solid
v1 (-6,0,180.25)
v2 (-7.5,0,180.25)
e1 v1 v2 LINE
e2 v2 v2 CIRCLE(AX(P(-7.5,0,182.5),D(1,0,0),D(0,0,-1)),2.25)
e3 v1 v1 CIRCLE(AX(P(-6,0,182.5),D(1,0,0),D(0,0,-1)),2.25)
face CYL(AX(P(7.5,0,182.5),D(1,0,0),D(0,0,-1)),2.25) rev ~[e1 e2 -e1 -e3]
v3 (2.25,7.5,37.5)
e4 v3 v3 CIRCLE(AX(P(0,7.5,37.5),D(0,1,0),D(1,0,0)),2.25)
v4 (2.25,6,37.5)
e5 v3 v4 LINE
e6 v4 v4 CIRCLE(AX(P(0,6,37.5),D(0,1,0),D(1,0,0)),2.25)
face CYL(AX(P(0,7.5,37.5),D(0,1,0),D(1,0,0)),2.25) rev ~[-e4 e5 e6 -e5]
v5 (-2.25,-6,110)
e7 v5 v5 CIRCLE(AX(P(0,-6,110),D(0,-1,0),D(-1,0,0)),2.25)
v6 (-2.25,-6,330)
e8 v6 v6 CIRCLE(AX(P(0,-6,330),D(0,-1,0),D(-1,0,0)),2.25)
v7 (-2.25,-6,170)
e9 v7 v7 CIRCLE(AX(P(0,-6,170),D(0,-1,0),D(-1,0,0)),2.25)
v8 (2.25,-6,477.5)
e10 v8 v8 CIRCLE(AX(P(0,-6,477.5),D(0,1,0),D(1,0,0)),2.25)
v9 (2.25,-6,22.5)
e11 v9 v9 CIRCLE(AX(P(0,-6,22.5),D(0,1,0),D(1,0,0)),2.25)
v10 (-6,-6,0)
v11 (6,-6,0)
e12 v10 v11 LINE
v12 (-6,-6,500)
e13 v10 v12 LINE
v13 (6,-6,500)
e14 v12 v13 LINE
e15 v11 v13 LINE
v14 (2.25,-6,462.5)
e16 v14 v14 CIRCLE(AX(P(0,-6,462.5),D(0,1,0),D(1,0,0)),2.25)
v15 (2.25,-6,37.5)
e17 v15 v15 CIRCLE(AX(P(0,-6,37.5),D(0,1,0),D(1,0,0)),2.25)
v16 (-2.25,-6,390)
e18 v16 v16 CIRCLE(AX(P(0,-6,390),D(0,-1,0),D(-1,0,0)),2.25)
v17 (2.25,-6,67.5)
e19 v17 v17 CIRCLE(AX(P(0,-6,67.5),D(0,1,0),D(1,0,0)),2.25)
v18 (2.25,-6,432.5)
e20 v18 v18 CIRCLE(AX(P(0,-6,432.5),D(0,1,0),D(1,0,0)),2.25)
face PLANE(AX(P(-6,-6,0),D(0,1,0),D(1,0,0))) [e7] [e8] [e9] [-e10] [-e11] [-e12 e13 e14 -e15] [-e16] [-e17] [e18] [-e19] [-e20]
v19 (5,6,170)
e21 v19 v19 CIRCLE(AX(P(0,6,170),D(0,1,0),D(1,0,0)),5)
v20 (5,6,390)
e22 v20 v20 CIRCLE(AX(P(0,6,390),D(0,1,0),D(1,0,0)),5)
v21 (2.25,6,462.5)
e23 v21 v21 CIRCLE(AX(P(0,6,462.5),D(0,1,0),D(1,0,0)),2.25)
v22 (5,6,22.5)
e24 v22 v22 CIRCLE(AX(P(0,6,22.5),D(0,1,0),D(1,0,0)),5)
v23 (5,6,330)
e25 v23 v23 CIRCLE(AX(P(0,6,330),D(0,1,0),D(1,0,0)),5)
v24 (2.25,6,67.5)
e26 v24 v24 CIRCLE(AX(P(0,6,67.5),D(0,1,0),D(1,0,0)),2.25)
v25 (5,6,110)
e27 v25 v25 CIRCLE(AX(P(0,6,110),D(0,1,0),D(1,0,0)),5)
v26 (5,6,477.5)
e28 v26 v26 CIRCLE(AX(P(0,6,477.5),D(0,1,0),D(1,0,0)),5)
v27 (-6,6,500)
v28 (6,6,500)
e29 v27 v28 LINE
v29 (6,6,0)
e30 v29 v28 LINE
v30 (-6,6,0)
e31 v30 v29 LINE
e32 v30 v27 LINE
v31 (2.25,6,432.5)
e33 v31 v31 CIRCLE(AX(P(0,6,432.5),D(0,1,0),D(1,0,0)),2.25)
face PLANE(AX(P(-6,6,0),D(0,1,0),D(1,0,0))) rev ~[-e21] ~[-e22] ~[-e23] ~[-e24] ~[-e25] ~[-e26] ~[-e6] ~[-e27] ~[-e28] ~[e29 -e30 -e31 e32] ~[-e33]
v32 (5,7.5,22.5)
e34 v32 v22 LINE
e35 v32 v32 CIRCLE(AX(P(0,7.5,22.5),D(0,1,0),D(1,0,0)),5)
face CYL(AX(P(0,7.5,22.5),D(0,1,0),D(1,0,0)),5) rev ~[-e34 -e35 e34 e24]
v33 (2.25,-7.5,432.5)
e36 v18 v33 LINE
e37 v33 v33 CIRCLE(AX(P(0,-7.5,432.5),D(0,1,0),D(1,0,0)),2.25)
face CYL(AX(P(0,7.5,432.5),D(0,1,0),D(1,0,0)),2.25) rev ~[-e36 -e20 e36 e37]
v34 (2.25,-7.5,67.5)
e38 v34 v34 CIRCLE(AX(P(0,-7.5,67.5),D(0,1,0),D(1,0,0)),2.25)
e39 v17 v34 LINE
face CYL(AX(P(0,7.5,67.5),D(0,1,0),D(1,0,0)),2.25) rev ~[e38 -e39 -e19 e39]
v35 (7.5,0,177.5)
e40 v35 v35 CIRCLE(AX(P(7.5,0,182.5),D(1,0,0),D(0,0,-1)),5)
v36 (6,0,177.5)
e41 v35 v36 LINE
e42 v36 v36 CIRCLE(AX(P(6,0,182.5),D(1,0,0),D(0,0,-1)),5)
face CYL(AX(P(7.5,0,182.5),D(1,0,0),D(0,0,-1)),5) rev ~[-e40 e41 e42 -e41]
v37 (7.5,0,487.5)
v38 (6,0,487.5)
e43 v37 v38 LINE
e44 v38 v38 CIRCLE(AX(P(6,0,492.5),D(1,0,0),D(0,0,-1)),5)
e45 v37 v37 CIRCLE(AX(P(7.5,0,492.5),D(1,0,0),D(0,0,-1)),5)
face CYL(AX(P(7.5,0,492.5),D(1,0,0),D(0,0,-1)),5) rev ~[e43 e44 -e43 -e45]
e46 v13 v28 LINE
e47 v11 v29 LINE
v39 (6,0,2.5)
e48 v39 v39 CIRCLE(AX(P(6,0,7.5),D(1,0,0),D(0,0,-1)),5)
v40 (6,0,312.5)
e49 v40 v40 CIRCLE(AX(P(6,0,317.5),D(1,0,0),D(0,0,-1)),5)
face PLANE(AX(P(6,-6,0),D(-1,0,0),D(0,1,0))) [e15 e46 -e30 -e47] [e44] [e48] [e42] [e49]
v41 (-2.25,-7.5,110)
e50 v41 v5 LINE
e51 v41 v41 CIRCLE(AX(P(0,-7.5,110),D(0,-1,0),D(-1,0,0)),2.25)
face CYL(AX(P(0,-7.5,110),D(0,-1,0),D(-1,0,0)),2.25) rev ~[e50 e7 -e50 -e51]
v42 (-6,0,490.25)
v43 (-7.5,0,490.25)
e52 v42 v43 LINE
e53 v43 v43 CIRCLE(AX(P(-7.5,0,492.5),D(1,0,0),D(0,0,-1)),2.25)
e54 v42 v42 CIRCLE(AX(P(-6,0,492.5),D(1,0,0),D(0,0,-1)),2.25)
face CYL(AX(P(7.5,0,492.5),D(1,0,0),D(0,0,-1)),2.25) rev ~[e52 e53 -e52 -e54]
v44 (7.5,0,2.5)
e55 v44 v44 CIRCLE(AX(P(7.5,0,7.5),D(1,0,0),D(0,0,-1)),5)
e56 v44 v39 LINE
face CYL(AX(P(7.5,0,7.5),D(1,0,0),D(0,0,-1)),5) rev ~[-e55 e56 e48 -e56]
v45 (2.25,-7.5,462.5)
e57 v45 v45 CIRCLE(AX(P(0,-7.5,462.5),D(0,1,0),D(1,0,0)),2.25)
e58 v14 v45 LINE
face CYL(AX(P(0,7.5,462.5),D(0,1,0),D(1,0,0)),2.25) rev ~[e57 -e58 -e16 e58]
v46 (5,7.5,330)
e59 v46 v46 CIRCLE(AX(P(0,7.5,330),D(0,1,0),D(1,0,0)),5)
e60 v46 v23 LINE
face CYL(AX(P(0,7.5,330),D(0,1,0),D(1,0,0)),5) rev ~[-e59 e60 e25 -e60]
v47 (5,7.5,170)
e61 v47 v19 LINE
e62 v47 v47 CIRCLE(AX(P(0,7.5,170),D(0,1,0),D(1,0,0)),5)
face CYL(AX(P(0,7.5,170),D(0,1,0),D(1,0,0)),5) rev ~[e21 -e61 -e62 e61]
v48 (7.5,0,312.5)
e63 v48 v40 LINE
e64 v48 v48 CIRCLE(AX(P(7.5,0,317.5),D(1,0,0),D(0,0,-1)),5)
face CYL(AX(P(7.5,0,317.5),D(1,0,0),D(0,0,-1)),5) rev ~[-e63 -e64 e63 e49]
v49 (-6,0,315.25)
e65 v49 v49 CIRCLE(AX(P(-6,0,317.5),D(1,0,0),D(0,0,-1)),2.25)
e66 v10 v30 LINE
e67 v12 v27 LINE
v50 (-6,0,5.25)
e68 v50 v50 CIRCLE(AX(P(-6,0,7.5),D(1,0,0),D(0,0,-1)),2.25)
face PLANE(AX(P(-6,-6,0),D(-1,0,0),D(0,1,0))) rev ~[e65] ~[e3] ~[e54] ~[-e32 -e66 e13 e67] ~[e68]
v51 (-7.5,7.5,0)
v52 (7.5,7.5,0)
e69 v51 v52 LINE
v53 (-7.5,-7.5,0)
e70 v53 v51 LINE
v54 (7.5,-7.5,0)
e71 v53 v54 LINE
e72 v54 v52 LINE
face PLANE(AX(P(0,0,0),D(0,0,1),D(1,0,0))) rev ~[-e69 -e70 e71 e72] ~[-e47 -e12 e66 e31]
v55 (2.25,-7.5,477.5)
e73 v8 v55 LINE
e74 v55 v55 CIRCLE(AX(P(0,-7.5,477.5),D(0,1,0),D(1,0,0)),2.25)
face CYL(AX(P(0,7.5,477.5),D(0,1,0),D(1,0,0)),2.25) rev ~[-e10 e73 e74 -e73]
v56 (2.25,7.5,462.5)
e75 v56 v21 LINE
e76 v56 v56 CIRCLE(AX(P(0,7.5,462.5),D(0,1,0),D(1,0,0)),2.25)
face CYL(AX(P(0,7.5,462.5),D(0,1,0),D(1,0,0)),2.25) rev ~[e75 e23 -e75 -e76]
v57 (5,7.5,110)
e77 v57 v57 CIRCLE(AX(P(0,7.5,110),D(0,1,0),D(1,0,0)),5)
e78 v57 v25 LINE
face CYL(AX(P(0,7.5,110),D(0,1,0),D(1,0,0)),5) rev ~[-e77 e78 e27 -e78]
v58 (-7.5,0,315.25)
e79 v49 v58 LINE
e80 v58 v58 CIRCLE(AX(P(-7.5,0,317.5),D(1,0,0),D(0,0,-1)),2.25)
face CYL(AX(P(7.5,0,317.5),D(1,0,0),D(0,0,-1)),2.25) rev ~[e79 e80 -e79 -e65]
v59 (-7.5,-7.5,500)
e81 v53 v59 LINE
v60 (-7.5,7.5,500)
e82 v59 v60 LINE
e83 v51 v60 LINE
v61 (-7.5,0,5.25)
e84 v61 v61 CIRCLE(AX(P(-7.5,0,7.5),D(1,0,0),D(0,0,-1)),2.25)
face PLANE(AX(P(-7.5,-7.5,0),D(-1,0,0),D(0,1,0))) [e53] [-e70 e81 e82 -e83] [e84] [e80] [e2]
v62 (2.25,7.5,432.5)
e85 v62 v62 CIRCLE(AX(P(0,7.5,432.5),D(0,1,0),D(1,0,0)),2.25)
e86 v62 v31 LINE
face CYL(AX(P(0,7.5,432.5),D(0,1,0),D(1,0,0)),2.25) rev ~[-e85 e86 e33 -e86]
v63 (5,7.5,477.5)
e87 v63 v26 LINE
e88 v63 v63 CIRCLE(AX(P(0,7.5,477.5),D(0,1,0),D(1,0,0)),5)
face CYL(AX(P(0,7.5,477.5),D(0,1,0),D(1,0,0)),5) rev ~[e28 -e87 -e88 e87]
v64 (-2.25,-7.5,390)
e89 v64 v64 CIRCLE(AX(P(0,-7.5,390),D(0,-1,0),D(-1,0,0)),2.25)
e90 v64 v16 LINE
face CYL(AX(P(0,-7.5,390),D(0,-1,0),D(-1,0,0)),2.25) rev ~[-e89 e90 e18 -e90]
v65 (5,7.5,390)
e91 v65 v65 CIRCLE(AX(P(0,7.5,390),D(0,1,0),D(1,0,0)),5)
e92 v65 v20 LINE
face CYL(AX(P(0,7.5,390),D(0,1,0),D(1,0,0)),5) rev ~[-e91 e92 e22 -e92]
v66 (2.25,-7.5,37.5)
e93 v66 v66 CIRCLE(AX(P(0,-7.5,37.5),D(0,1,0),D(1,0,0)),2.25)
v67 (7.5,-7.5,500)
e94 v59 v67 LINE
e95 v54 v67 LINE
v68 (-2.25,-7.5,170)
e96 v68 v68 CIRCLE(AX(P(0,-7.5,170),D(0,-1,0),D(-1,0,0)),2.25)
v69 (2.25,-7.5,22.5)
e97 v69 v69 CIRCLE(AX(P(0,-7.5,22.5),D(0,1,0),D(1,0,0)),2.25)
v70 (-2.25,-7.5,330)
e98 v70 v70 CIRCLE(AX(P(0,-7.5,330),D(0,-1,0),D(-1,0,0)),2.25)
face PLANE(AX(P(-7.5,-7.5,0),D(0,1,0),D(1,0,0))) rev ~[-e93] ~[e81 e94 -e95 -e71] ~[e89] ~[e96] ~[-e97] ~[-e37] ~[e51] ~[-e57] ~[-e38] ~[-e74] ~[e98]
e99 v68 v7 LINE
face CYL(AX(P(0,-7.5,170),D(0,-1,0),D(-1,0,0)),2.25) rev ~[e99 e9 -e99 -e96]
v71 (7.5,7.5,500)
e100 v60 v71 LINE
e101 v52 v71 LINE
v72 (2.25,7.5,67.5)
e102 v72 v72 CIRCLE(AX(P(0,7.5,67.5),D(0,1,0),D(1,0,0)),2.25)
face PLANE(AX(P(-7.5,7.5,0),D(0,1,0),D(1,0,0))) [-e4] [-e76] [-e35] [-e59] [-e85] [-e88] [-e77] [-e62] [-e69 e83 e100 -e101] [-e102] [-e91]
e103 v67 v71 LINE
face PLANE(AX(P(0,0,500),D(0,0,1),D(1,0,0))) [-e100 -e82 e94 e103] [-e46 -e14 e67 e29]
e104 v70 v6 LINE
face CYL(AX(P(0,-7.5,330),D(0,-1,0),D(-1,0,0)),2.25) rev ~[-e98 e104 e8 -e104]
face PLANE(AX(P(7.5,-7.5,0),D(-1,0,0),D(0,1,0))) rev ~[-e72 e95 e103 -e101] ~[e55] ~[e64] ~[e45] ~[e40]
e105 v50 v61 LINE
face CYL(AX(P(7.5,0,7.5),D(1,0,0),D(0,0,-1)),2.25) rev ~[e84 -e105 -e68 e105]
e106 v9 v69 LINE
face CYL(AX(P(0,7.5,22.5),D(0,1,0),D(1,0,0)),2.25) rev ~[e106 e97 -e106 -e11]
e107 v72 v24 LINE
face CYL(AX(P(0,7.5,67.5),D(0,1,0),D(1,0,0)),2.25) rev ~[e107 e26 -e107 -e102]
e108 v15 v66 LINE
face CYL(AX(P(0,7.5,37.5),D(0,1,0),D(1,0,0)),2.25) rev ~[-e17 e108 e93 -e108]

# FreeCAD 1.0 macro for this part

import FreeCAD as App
import Part
import Sketcher
Q = App.Units.Quantity

doc = App.newDocument("Part")
body = doc.addObject("PartDesign::Body", "Body")

# Sketch on XY plane
sketch1 = body.newObject("Sketcher::SketchObject", "Sketch")
sketch1.AttachmentSupport = (doc.getObject("XY_Plane"), [""])
sketch1.MapMode = "FlatFace"
sketch1.addGeometry([
    Part.LineSegment(App.Vector(-8, 8, 0), App.Vector(-8, -8, 0)),  # 0
    Part.LineSegment(App.Vector(-8, -8, 0), App.Vector(8, -8, 0)),  # 1
    Part.LineSegment(App.Vector(8, -8, 0), App.Vector(8, 8, 0)),  # 2
    Part.LineSegment(App.Vector(8, 8, 0), App.Vector(-8, 8, 0)),  # 3
    Part.LineSegment(App.Vector(6, -6, 0), App.Vector(-6, -6, 0)),  # 4
    Part.LineSegment(App.Vector(-6, -6, 0), App.Vector(-6, 6, 0)),  # 5
    Part.LineSegment(App.Vector(-6, 6, 0), App.Vector(6, 6, 0)),  # 6
    Part.LineSegment(App.Vector(6, 6, 0), App.Vector(6, -6, 0)),  # 7
], False)
sketch1.addConstraint([
    Sketcher.Constraint("Coincident", 0, 2, 1, 1),
    Sketcher.Constraint("Coincident", 1, 2, 2, 1),
    Sketcher.Constraint("Coincident", 2, 2, 3, 1),
    Sketcher.Constraint("Coincident", 3, 2, 0, 1),
    Sketcher.Constraint("Coincident", 4, 2, 5, 1),
    Sketcher.Constraint("Coincident", 5, 2, 6, 1),
    Sketcher.Constraint("Coincident", 6, 2, 7, 1),
    Sketcher.Constraint("Coincident", 7, 2, 4, 1),
    Sketcher.Constraint("Vertical", 0),
    Sketcher.Constraint("Horizontal", 1),
    Sketcher.Constraint("Vertical", 2),
    Sketcher.Constraint("Horizontal", 3),
    Sketcher.Constraint("Horizontal", 4),
    Sketcher.Constraint("Vertical", 5),
    Sketcher.Constraint("Horizontal", 6),
    Sketcher.Constraint("Vertical", 7),
    Sketcher.Constraint("Symmetric", 0, 2, 2, 2, -1, 1),
    Sketcher.Constraint("Symmetric", 4, 2, 6, 2, -1, 1),
    Sketcher.Constraint("Equal", 3, 0),
    Sketcher.Constraint("Equal", 6, 5),
    Sketcher.Constraint("DistanceX", 1, 1, 1, 2, Q("15 mm")),
    Sketcher.Constraint("DistanceX", 4, 2, 4, 1, Q("12 mm")),
])
pad1 = body.newObject("PartDesign::Pad", "Pad")
pad1.Profile = sketch1
pad1.Length = 500

# Sketch on YZ plane
sketch2 = body.newObject("Sketcher::SketchObject", "Sketch001")
sketch2.AttachmentSupport = (doc.getObject("YZ_Plane"), [""])
sketch2.MapMode = "FlatFace"
sketch2.AttachmentOffset = App.Placement(App.Vector(0, 0, 7.5), App.Rotation())
sketch2.addGeometry([
    Part.Circle(App.Vector(0, 492.5, 0), App.Vector(0, 0, 1), 2.2),
    Part.Circle(App.Vector(0, 7.5, 0), App.Vector(0, 0, 1), 2.2),
    Part.Circle(App.Vector(0, 317.5, 0), App.Vector(0, 0, 1), 2.2),
    Part.Circle(App.Vector(0, 182.5, 0), App.Vector(0, 0, 1), 2.2),
], False)
sketch2.addConstraint([
    Sketcher.Constraint("Equal", 0, 1),
    Sketcher.Constraint("Equal", 1, 2),
    Sketcher.Constraint("Equal", 2, 3),
    Sketcher.Constraint("PointOnObject", 0, 3, -2),
    Sketcher.Constraint("PointOnObject", 1, 3, -2),
    Sketcher.Constraint("PointOnObject", 2, 3, -2),
    Sketcher.Constraint("PointOnObject", 3, 3, -2),
    Sketcher.Constraint("Diameter", 0, Q("4.5 mm")),
    Sketcher.Constraint("DistanceY", 1, 3, 0, 3, Q("485 mm")),
    Sketcher.Constraint("DistanceY", 2, 3, 0, 3, Q("175 mm")),
    Sketcher.Constraint("DistanceY", 3, 3, 2, 3, Q("135 mm")),
    Sketcher.Constraint("DistanceY", -1, 1, 0, 3, Q("492.5 mm")),
])
pocket1 = body.newObject("PartDesign::Pocket", "Pocket")
pocket1.Profile = sketch2
pocket1.Length = 25

# Sketch on XZ plane
sketch3 = body.newObject("Sketcher::SketchObject", "Sketch002")
sketch3.AttachmentSupport = (doc.getObject("XZ_Plane"), [""])
sketch3.MapMode = "FlatFace"
sketch3.AttachmentOffset = App.Placement(App.Vector(0, 0, -7.5), App.Rotation())
sketch3.addGeometry([
    Part.Circle(App.Vector(0, 22.5, 0), App.Vector(0, 0, 1), 2.2),  # 0
    Part.Circle(App.Vector(0, 477.5, 0), App.Vector(0, 0, 1), 2.2),  # 1
    Part.Circle(App.Vector(0, 37.5, 0), App.Vector(0, 0, 1), 2.2),  # 2
    Part.Circle(App.Vector(0, 462.5, 0), App.Vector(0, 0, 1), 2.2),  # 3
    Part.Circle(App.Vector(0, 67.5, 0), App.Vector(0, 0, 1), 2.2),  # 4
    Part.Circle(App.Vector(0, 432.5, 0), App.Vector(0, 0, 1), 2.2),  # 5
], False)
sketch3.addConstraint([
    Sketcher.Constraint("Equal", 0, 1),
    Sketcher.Constraint("Equal", 1, 2),
    Sketcher.Constraint("Equal", 2, 3),
    Sketcher.Constraint("Equal", 3, 4),
    Sketcher.Constraint("Equal", 4, 5),
    Sketcher.Constraint("PointOnObject", 0, 3, -2),
    Sketcher.Constraint("PointOnObject", 1, 3, -2),
    Sketcher.Constraint("PointOnObject", 2, 3, -2),
    Sketcher.Constraint("PointOnObject", 3, 3, -2),
    Sketcher.Constraint("PointOnObject", 4, 3, -2),
    Sketcher.Constraint("PointOnObject", 5, 3, -2),
    Sketcher.Constraint("Diameter", 0, Q("4.5 mm")),
    Sketcher.Constraint("DistanceY", 0, 3, 1, 3, Q("455 mm")),
    Sketcher.Constraint("DistanceY", 0, 3, 2, 3, Q("15 mm")),
    Sketcher.Constraint("DistanceY", 3, 3, 1, 3, Q("15 mm")),
    Sketcher.Constraint("DistanceY", 2, 3, 4, 3, Q("30 mm")),
    Sketcher.Constraint("DistanceY", 5, 3, 3, 3, Q("30 mm")),
    Sketcher.Constraint("DistanceY", -1, 1, 0, 3, Q("22.5 mm")),
])
pocket2 = body.newObject("PartDesign::Pocket", "Pocket001")
pocket2.Profile = sketch3
pocket2.Length = 25
pocket2.Reversed = True

# Sketch on XZ plane
sketch4 = body.newObject("Sketcher::SketchObject", "Sketch003")
sketch4.AttachmentSupport = (doc.getObject("XZ_Plane"), [""])
sketch4.MapMode = "FlatFace"
sketch4.AttachmentOffset = App.Placement(App.Vector(0, 0, 7.5), App.Rotation())
sketch4.addGeometry([
    Part.Circle(App.Vector(0, 390, 0), App.Vector(0, 0, 1), 2.2),
    Part.Circle(App.Vector(0, 330, 0), App.Vector(0, 0, 1), 2.2),
    Part.Circle(App.Vector(0, 110, 0), App.Vector(0, 0, 1), 2.2),
    Part.Circle(App.Vector(0, 170, 0), App.Vector(0, 0, 1), 2.2),
], False)
sketch4.addConstraint([
    Sketcher.Constraint("Equal", 0, 1),
    Sketcher.Constraint("Equal", 1, 2),
    Sketcher.Constraint("Equal", 2, 3),
    Sketcher.Constraint("PointOnObject", 0, 3, -2),
    Sketcher.Constraint("PointOnObject", 1, 3, -2),
    Sketcher.Constraint("PointOnObject", 2, 3, -2),
    Sketcher.Constraint("PointOnObject", 3, 3, -2),
    Sketcher.Constraint("Diameter", 0, Q("4.5 mm")),
    Sketcher.Constraint("DistanceY", -1, 1, 0, 3, Q("390 mm")),
    Sketcher.Constraint("DistanceY", -1, 1, 1, 3, Q("330 mm")),
    Sketcher.Constraint("DistanceY", -1, 1, 2, 3, Q("110 mm")),
    Sketcher.Constraint("DistanceY", -1, 1, 3, 3, Q("170 mm")),
])
pocket3 = body.newObject("PartDesign::Pocket", "Pocket002")
pocket3.Profile = sketch4
pocket3.Length = 20

# Sketch on XZ plane
sketch5 = body.newObject("Sketcher::SketchObject", "Sketch004")
sketch5.AttachmentSupport = (doc.getObject("XZ_Plane"), [""])
sketch5.MapMode = "FlatFace"
sketch5.AttachmentOffset = App.Placement(App.Vector(0, 0, -7.5), App.Rotation())
sketch5.addGeometry([
    Part.Circle(App.Vector(0, 22, 0), App.Vector(0, 0, 1), 5),  # 0
    Part.Circle(App.Vector(0, 478, 0), App.Vector(0, 0, 1), 5),  # 1
    Part.Circle(App.Vector(0, 390, 0), App.Vector(0, 0, 1), 5),  # 2
    Part.Circle(App.Vector(0, 330, 0), App.Vector(0, 0, 1), 5),  # 3
    Part.Circle(App.Vector(0, 110, 0), App.Vector(0, 0, 1), 5),  # 4
    Part.Circle(App.Vector(0, 170, 0), App.Vector(0, 0, 1), 5),  # 5
], False)
sketch5.addConstraint([
    Sketcher.Constraint("Equal", 0, 1),
    Sketcher.Constraint("Equal", 1, 2),
    Sketcher.Constraint("Equal", 2, 3),
    Sketcher.Constraint("Equal", 3, 4),
    Sketcher.Constraint("Equal", 4, 5),
    Sketcher.Constraint("PointOnObject", 0, 3, -2),
    Sketcher.Constraint("PointOnObject", 1, 3, -2),
    Sketcher.Constraint("PointOnObject", 2, 3, -2),
    Sketcher.Constraint("PointOnObject", 3, 3, -2),
    Sketcher.Constraint("PointOnObject", 4, 3, -2),
    Sketcher.Constraint("PointOnObject", 5, 3, -2),
    Sketcher.Constraint("Diameter", 0, Q("10 mm")),
    Sketcher.Constraint("DistanceY", -1, 1, 2, 3, Q("390 mm")),
    Sketcher.Constraint("DistanceY", -1, 1, 3, 3, Q("330 mm")),
    Sketcher.Constraint("DistanceY", -1, 1, 4, 3, Q("110 mm")),
    Sketcher.Constraint("DistanceY", -1, 1, 5, 3, Q("170 mm")),
    Sketcher.Constraint("DistanceY", 0, 3, 1, 3, Q("455 mm")),
    Sketcher.Constraint("DistanceY", -1, 1, 0, 3, Q("22.5 mm")),
])
pocket4 = body.newObject("PartDesign::Pocket", "Pocket003")
pocket4.Profile = sketch5
pocket4.Length = 10
pocket4.Reversed = True

# Sketch on YZ plane
sketch6 = body.newObject("Sketcher::SketchObject", "Sketch005")
sketch6.AttachmentSupport = (doc.getObject("YZ_Plane"), [""])
sketch6.MapMode = "FlatFace"
sketch6.AttachmentOffset = App.Placement(App.Vector(0, 0, 7.5), App.Rotation())
sketch6.addGeometry([
    Part.Circle(App.Vector(0, 492, 0), App.Vector(0, 0, 1), 5),
    Part.Circle(App.Vector(0, 318, 0), App.Vector(0, 0, 1), 5),
    Part.Circle(App.Vector(0, 182, 0), App.Vector(0, 0, 1), 5),
    Part.Circle(App.Vector(0, 8, 0), App.Vector(0, 0, 1), 5),
], False)
sketch6.addConstraint([
    Sketcher.Constraint("Equal", 0, 1),
    Sketcher.Constraint("Equal", 1, 2),
    Sketcher.Constraint("Equal", 2, 3),
    Sketcher.Constraint("PointOnObject", 0, 3, -2),
    Sketcher.Constraint("PointOnObject", 1, 3, -2),
    Sketcher.Constraint("PointOnObject", 2, 3, -2),
    Sketcher.Constraint("PointOnObject", 3, 3, -2),
    Sketcher.Constraint("Diameter", 0, Q("10 mm")),
    Sketcher.Constraint("DistanceY", 1, 3, 0, 3, Q("175 mm")),
    Sketcher.Constraint("DistanceY", 2, 3, 1, 3, Q("135 mm")),
    Sketcher.Constraint("DistanceY", 3, 3, 2, 3, Q("175 mm")),
    Sketcher.Constraint("DistanceY", -1, 1, 0, 3, Q("492.5 mm")),
])
pocket5 = body.newObject("PartDesign::Pocket", "Pocket004")
pocket5.Profile = sketch6
pocket5.Length = 10

doc.recompute()
